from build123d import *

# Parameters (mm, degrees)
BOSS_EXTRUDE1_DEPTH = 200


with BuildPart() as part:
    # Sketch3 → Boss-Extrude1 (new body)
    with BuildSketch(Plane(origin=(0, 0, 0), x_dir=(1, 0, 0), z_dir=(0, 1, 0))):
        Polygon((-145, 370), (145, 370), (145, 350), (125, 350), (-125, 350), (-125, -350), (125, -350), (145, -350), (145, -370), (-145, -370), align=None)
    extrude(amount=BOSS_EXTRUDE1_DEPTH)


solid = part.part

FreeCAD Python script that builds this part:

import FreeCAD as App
import Part
import Sketcher
from FreeCAD import Vector


def add_polygon(sketch, points):
    """Adds a closed chain of lines whose ends are joined by coincident constraints."""
    first, n = sketch.GeometryCount, len(points)
    for a, b in zip(points, points[1:] + points[:1]):
        sketch.addGeometry(Part.LineSegment(App.Vector(*a, 0), App.Vector(*b, 0)), False)
    for i in range(n):
        sketch.addConstraint(Sketcher.Constraint("Coincident", first + i, 2, first + (i + 1) % n, 1))

doc = App.newDocument("Part")
body = doc.addObject("PartDesign::Body", "Body")

sketch1 = body.newObject("Sketcher::SketchObject", "Sketch")
sketch1.AttachmentSupport = (doc.getObject("XZ_Plane"), [""])
sketch1.MapMode = "FlatFace"
add_polygon(sketch1, [(145, -370), (-145, -370), (-145, 370), (145, 370), (145, 350), (-125, 350), (-125, -350), (145, -350)])
sketch1.addConstraint(Sketcher.Constraint("Horizontal", 0))
sketch1.addConstraint(Sketcher.Constraint("Vertical", 1))
sketch1.addConstraint(Sketcher.Constraint("Horizontal", 2))
sketch1.addConstraint(Sketcher.Constraint("Vertical", 3))
sketch1.addConstraint(Sketcher.Constraint("Horizontal", 4))
sketch1.addConstraint(Sketcher.Constraint("Vertical", 5))
sketch1.addConstraint(Sketcher.Constraint("Horizontal", 6))
sketch1.addConstraint(Sketcher.Constraint("Vertical", 7))
sketch1.addConstraint(Sketcher.Constraint("Symmetric", 0, 2, 2, 2, -1, 1))
sketch1.addConstraint(Sketcher.Constraint("Symmetric", 3, 2, 6, 2, -1))
sketch1.addConstraint(Sketcher.Constraint("DistanceX", 0, 2, 0, 1, 290.0))
sketch1.addConstraint(Sketcher.Constraint("DistanceX", 4, 2, 4, 1, 270.0))
sketch1.addConstraint(Sketcher.Constraint("DistanceY", 1, 1, 1, 2, 740.0))
sketch1.addConstraint(Sketcher.Constraint("DistanceY", 3, 2, 3, 1, 20.0))
pad1 = body.newObject("PartDesign::Pad", "Pad")
pad1.Profile = sketch1
pad1.Length = 200
pad1.Reversed = True

doc.recompute()
